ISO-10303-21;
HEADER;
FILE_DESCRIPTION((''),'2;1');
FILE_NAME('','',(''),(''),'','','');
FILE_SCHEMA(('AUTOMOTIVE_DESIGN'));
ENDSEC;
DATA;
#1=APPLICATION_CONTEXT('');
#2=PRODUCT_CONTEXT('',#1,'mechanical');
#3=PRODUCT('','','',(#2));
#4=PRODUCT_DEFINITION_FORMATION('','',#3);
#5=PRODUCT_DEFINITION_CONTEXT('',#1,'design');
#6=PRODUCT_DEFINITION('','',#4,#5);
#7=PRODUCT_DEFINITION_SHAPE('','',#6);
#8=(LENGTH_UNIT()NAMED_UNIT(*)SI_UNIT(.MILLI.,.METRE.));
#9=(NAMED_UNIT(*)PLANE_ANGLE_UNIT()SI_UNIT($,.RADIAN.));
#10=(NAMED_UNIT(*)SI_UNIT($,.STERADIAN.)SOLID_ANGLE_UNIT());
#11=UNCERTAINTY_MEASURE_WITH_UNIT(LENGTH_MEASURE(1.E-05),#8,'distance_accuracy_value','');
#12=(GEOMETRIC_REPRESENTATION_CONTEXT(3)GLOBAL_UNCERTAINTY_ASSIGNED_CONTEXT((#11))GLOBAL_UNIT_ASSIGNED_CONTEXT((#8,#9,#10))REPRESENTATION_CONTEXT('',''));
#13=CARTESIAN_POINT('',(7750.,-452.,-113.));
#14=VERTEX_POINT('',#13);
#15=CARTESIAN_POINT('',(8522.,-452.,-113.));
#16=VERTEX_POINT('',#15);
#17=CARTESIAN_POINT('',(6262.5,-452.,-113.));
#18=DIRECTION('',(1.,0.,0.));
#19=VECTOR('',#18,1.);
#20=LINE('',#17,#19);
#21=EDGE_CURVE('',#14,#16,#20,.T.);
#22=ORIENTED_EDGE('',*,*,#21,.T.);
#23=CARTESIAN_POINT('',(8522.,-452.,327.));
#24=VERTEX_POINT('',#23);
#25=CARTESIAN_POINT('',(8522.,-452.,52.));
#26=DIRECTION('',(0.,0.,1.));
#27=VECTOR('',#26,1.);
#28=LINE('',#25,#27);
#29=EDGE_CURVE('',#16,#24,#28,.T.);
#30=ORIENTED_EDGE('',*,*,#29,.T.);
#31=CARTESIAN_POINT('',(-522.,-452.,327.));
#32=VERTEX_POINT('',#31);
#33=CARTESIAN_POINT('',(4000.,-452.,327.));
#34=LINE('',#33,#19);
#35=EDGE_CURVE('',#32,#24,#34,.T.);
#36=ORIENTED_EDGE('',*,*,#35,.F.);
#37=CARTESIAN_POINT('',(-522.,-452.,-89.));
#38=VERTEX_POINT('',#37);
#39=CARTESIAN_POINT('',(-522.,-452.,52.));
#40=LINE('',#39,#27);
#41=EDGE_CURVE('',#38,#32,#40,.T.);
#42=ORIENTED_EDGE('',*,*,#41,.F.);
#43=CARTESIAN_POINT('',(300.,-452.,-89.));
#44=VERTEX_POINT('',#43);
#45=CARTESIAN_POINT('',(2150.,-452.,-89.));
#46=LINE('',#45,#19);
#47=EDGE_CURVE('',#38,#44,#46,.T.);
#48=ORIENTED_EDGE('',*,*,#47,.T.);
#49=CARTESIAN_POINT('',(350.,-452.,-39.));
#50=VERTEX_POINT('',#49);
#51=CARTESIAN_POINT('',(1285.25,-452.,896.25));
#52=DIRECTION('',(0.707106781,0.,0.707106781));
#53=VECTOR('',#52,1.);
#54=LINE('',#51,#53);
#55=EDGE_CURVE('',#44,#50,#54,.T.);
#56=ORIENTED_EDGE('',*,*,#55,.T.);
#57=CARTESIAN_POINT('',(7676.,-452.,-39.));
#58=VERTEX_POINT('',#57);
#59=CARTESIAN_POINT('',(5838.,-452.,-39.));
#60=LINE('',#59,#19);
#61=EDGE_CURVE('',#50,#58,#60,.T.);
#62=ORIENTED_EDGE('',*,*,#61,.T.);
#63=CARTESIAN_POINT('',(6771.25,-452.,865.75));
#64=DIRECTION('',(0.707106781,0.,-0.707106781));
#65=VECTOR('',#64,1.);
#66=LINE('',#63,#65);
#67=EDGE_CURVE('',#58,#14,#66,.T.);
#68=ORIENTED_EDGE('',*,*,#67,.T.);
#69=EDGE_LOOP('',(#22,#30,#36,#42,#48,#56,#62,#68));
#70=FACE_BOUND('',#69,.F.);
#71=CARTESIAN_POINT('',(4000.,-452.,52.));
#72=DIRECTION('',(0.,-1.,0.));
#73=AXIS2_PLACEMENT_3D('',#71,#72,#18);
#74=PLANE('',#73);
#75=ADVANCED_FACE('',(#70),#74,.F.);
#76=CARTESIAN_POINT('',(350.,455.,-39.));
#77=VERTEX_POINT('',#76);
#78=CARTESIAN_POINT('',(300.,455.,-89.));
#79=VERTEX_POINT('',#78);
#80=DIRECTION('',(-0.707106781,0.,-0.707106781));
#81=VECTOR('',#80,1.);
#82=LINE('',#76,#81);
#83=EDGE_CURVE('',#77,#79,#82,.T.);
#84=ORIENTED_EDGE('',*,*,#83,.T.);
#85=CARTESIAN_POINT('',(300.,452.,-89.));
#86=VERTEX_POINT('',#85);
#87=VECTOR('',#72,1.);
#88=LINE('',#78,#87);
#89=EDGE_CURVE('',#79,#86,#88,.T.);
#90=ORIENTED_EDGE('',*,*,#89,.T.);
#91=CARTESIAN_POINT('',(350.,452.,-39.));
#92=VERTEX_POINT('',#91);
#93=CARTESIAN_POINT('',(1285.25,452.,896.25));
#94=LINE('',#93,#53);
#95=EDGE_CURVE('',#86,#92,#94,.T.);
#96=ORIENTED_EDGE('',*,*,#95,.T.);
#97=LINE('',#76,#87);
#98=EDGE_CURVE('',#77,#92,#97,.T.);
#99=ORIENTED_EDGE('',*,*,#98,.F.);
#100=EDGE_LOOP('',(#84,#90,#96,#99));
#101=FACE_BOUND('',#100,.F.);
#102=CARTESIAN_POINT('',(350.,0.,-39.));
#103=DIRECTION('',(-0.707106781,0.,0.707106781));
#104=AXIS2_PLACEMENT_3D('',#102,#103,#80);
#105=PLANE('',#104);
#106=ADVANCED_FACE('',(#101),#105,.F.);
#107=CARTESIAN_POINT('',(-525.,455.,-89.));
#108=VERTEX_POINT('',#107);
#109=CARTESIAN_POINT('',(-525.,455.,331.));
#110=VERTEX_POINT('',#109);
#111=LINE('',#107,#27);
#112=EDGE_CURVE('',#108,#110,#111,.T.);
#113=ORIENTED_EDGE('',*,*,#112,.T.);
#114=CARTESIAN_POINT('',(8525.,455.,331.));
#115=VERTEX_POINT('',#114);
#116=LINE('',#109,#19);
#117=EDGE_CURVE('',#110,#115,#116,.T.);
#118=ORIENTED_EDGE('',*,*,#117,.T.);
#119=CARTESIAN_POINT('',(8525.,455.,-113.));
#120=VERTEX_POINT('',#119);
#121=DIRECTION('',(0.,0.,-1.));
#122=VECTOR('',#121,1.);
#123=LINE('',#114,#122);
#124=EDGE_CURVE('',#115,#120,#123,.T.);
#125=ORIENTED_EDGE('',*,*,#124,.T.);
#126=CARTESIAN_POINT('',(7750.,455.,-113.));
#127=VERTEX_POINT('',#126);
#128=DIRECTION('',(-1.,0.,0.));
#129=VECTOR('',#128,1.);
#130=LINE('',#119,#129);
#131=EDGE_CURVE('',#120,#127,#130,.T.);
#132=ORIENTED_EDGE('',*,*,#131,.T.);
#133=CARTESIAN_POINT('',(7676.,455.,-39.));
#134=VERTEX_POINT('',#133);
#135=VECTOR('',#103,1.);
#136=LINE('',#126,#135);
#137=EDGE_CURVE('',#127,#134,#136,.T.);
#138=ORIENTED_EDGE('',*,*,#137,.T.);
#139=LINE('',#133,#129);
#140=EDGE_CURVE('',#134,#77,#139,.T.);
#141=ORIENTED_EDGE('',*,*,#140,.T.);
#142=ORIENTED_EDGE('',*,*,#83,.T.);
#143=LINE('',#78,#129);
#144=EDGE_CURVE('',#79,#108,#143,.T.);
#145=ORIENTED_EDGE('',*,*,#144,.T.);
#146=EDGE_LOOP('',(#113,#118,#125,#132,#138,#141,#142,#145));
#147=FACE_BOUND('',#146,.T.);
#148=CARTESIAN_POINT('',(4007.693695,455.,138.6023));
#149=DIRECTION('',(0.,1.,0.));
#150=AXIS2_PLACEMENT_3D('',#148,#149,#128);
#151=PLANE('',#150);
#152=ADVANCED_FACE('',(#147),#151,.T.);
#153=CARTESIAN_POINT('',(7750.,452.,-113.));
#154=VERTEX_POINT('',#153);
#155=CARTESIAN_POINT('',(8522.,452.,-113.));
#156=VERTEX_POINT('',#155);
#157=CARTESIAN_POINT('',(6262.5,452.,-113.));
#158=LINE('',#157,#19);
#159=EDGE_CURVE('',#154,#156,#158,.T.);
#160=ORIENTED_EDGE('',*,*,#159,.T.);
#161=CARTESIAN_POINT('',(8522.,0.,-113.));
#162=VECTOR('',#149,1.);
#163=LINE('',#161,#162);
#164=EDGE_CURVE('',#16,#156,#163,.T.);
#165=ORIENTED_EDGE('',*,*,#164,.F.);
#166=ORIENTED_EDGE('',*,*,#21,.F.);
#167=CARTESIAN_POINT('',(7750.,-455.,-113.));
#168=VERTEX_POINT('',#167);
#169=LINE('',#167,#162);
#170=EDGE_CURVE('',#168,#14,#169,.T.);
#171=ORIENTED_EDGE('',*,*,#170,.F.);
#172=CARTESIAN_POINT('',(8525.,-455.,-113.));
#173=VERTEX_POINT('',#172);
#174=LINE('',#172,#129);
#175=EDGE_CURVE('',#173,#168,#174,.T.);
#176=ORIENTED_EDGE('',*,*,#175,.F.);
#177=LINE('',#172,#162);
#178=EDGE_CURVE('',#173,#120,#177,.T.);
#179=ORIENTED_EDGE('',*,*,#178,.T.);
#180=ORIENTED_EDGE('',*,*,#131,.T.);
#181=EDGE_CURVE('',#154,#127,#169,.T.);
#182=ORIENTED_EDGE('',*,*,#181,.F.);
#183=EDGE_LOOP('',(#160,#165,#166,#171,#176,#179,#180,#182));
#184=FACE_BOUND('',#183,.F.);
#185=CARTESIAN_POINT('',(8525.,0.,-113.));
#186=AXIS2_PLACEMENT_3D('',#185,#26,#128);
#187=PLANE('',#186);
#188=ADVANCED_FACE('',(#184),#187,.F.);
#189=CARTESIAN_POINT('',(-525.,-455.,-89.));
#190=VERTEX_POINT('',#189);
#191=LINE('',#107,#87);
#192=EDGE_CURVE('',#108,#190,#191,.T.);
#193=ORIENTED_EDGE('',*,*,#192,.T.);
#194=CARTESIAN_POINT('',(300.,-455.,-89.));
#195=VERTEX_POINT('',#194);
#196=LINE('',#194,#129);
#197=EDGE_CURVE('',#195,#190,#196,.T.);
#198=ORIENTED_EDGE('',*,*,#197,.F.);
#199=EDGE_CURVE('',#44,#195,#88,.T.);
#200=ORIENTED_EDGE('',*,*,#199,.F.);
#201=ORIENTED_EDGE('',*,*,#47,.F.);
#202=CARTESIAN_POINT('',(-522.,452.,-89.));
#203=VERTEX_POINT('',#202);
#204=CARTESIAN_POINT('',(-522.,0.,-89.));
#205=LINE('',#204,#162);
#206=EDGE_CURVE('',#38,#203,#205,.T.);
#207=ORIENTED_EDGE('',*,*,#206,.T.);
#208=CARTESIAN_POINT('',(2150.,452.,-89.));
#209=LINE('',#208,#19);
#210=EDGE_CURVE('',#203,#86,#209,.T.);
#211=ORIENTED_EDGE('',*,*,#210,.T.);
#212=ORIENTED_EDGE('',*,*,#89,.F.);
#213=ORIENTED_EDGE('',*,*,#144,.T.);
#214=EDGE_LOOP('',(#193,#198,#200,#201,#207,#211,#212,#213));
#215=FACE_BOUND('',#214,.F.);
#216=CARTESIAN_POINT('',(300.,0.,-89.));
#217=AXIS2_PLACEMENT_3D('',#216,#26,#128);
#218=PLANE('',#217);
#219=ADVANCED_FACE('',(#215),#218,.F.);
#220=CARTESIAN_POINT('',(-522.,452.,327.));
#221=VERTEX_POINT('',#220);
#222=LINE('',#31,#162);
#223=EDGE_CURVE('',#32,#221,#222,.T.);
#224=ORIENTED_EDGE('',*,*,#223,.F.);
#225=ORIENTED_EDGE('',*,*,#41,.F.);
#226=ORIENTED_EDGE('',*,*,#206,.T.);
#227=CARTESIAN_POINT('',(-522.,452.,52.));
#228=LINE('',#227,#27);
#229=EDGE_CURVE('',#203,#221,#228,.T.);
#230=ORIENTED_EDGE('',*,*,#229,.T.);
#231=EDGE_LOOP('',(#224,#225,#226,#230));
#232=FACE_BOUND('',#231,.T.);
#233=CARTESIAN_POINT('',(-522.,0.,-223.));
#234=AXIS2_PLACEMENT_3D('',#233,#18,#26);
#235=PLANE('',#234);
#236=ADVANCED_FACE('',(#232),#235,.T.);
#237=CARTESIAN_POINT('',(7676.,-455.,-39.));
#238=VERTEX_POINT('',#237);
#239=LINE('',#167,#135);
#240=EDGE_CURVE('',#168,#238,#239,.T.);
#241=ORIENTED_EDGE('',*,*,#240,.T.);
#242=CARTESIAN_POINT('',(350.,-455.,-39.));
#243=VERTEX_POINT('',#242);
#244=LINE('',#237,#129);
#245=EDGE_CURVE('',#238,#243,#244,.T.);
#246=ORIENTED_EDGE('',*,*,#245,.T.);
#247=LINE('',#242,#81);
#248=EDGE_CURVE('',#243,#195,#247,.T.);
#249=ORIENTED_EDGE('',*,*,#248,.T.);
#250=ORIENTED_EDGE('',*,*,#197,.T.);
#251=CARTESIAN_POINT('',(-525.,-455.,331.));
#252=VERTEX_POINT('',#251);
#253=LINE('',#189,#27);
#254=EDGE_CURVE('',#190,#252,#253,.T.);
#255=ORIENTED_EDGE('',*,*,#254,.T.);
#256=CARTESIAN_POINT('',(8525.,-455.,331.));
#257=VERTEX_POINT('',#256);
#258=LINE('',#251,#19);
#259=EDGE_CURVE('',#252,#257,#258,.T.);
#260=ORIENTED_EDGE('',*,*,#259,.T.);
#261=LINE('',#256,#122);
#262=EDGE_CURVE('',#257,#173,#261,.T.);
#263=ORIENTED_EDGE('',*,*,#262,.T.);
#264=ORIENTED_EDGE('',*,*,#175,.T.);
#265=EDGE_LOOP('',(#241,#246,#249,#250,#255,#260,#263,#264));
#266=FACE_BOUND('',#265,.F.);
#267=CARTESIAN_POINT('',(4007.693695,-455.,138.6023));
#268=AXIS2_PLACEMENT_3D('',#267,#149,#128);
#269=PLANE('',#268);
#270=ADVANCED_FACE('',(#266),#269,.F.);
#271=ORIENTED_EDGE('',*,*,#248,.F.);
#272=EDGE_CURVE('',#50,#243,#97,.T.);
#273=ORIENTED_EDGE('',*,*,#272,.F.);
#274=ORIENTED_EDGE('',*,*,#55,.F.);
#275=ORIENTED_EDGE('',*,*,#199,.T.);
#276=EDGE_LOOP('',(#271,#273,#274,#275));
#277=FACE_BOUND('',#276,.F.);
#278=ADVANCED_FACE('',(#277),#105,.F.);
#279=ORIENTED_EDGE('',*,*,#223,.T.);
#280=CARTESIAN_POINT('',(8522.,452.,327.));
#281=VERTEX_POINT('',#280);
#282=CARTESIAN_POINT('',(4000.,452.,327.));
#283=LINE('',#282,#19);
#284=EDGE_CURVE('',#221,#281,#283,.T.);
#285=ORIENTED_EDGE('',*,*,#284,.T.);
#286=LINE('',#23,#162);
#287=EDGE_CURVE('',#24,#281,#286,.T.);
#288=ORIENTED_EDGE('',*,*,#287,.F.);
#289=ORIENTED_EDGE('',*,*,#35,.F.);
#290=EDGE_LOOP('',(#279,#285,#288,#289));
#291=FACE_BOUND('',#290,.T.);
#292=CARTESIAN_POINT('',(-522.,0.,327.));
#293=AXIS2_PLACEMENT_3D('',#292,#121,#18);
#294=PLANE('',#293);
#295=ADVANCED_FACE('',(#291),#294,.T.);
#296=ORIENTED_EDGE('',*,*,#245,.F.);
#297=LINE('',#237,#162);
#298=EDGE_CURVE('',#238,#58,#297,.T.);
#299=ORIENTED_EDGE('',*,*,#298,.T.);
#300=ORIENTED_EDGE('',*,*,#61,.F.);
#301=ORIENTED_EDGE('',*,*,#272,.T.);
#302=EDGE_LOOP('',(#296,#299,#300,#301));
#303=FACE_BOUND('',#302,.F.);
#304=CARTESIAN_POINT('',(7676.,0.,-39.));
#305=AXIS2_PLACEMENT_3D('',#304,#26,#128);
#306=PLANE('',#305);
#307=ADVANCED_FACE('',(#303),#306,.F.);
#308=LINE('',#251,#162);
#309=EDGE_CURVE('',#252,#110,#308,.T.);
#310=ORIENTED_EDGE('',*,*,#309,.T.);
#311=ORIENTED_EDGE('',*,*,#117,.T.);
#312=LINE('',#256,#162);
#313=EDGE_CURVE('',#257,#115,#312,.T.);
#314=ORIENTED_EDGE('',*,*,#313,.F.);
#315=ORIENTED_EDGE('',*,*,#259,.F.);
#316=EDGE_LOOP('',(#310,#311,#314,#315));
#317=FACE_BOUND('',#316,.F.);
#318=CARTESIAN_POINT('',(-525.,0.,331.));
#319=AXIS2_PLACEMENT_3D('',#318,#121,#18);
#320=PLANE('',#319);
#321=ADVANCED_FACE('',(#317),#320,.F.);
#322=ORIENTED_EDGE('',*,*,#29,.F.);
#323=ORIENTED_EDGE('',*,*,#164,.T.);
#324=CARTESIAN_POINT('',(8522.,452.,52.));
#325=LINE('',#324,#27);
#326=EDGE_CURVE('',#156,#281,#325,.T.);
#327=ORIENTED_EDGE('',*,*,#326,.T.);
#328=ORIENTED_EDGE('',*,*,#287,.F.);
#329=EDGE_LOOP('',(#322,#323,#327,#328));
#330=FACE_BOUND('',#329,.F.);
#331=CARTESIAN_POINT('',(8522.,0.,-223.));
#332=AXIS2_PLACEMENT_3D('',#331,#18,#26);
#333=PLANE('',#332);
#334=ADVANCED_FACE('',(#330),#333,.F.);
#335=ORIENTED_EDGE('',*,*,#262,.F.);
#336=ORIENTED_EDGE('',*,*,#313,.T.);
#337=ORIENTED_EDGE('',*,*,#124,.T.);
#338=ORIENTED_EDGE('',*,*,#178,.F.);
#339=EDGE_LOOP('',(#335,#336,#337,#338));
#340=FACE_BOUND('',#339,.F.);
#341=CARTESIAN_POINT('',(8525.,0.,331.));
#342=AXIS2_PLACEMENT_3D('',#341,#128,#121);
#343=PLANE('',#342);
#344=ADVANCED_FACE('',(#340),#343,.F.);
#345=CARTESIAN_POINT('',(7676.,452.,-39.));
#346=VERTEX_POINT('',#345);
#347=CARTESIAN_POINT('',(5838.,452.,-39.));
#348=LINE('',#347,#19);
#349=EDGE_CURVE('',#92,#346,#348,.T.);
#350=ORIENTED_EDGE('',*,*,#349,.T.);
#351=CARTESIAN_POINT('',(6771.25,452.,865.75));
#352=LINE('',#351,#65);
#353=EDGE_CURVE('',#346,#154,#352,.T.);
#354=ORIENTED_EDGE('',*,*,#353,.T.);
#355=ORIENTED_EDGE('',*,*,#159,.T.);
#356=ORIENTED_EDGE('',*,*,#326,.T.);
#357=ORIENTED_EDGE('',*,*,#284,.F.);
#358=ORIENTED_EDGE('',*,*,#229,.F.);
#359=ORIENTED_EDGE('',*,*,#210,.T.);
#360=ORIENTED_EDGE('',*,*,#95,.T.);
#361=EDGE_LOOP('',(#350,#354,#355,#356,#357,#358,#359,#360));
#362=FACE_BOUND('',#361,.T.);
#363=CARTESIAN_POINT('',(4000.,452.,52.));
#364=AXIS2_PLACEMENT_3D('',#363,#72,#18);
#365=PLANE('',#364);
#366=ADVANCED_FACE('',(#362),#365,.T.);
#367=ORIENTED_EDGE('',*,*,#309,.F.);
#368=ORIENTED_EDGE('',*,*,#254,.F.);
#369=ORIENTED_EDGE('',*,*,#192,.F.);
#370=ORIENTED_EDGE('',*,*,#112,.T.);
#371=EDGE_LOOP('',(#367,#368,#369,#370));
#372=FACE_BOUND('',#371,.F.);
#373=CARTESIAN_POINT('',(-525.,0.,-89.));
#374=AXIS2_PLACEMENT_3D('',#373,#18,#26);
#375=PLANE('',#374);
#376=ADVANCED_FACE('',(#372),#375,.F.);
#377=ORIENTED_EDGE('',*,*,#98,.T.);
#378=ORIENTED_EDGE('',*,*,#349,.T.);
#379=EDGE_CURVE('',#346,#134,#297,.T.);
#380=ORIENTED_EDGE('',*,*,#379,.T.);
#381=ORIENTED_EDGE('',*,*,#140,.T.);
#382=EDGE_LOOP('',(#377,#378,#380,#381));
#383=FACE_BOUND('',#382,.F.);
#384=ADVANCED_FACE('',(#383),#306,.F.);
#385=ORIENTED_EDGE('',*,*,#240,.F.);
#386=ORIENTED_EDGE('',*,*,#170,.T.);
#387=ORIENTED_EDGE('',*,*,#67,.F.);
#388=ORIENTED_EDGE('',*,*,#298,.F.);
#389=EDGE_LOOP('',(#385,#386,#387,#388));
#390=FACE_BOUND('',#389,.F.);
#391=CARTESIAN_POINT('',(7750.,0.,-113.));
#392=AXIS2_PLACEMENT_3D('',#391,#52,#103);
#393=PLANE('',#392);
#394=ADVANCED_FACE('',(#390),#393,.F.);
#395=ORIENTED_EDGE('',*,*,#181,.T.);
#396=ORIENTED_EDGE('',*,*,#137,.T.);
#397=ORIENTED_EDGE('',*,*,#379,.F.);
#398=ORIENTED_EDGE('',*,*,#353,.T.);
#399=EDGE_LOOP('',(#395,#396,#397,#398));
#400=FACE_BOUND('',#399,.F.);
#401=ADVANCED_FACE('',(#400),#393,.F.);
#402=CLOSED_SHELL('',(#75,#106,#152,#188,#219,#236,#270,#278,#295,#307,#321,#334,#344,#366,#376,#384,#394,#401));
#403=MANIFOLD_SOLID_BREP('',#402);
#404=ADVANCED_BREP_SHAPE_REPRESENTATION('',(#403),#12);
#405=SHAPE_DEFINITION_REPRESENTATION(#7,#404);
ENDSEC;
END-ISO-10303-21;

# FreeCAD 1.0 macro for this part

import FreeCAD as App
import Part
import Sketcher
Q = App.Units.Quantity


def add_polygon(sketch, points):
    """Adds a closed chain of lines whose ends are joined by coincident constraints."""
    first, n = sketch.GeometryCount, len(points)
    for a, b in zip(points, points[1:] + points[:1]):
        sketch.addGeometry(Part.LineSegment(App.Vector(*a, 0), App.Vector(*b, 0)), False)
    for i in range(n):
        sketch.addConstraint(Sketcher.Constraint("Coincident", first + i, 2, first + (i + 1) % n, 1))

doc = App.newDocument("Part")
body = doc.addObject("PartDesign::Body", "Body")

# Sketch on XZ plane
sketch1 = body.newObject("Sketcher::SketchObject", "Sketch")
sketch1.AttachmentSupport = (doc.getObject("XZ_Plane"), [""])
sketch1.MapMode = "FlatFace"
add_polygon(sketch1, [(-522, 327), (-522, -223), (8522, -223), (8522, 327)])  # lines 0-3
sketch1.addConstraint([
    Sketcher.Constraint("Vertical", 0),
    Sketcher.Constraint("Horizontal", 1),
    Sketcher.Constraint("Vertical", 2),
    Sketcher.Constraint("Horizontal", 3),
    Sketcher.Constraint("DistanceX", 1, 1, 1, 2, Q("9044 mm")),
    Sketcher.Constraint("DistanceY", 0, 2, 0, 1, Q("550 mm")),
    Sketcher.Constraint("DistanceX", 0, 2, -1, 1, Q("522 mm")),
    Sketcher.Constraint("DistanceY", 0, 2, -1, 1, Q("223 mm")),
])
pad1 = body.newObject("PartDesign::Pad", "Pad")
pad1.Profile = sketch1
pad1.Length = 904
pad1.Midplane = True
body2 = doc.addObject("PartDesign::Body", "Body001")

# Sketch on XZ plane
sketch2 = body2.newObject("Sketcher::SketchObject", "Sketch001")
sketch2.AttachmentSupport = (doc.getObject("XZ_Plane001"), [""])
sketch2.MapMode = "FlatFace"
add_polygon(sketch2, [(-525, 331), (-525, -89), (300, -89), (350, -39), (7676, -39), (7750, -113), (8525, -113), (8525, 331)])  # lines 0-7
sketch2.addConstraint([
    Sketcher.Constraint("Vertical", 0),
    Sketcher.Constraint("Horizontal", 1),
    Sketcher.Constraint("Horizontal", 3),
    Sketcher.Constraint("Horizontal", 5),
    Sketcher.Constraint("Vertical", 6),
    Sketcher.Constraint("Horizontal", 7),
    Sketcher.Constraint("Perpendicular", 2, 4),
    Sketcher.Constraint("DistanceX", 1, 1, 1, 2, Q("825 mm")),
    Sketcher.Constraint("DistanceX", 3, 1, 3, 2, Q("7326 mm")),
    Sketcher.Constraint("DistanceX", 5, 1, 5, 2, Q("775 mm")),
    Sketcher.Constraint("DistanceX", 7, 2, 7, 1, Q("9050 mm")),
    Sketcher.Constraint("DistanceY", 0, 2, 0, 1, Q("420 mm")),
    Sketcher.Constraint("DistanceY", 6, 1, 6, 2, Q("444 mm")),
    Sketcher.Constraint("Angle", 2, Q("45 deg")),
    Sketcher.Constraint("DistanceX", 0, 2, -1, 1, Q("525 mm")),
    Sketcher.Constraint("DistanceY", 0, 2, -1, 1, Q("89 mm")),
])
pad2 = body2.newObject("PartDesign::Pad", "Pad001")
pad2.Profile = sketch2
pad2.Length = 910
pad2.Midplane = True
doc.recompute()

boolean = body2.newObject("PartDesign::Boolean", "Boolean")
boolean.Type = "Cut"
boolean.addObjects([body])

doc.recompute()
